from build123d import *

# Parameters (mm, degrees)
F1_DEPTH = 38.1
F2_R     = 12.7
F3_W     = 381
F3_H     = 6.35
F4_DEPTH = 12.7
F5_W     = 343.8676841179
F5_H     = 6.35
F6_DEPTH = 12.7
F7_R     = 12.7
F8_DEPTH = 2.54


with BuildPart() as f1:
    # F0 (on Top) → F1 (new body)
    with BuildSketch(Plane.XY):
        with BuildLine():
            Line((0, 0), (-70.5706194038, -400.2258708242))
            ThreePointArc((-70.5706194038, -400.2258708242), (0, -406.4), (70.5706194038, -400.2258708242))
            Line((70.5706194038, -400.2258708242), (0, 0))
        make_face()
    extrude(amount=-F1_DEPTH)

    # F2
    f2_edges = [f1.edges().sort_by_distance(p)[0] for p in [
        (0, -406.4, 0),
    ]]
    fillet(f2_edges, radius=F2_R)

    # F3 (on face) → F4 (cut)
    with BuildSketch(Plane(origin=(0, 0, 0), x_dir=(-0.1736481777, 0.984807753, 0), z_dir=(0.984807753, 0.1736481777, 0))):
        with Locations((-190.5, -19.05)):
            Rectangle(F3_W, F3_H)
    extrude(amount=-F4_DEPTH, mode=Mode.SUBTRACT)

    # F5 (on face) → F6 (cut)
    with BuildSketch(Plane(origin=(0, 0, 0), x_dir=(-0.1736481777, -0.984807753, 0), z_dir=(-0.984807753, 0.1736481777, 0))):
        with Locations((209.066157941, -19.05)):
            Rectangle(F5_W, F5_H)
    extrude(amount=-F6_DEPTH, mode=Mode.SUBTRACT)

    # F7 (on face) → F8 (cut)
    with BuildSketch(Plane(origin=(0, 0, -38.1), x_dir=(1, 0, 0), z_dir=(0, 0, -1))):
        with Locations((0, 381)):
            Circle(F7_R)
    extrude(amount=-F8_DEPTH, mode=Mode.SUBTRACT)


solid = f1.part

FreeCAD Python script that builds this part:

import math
import FreeCAD as App
import Part
import Sketcher
Q = App.Units.Quantity


def edges_at(feature, points):
    """Names of the edges that pass closest to the given points."""
    edges = feature.Shape.Edges
    near = lambda p: min(range(len(edges)), key=lambda i: edges[i].distToShape(Part.Vertex(*p))[0])
    return sorted({f"Edge{near(p) + 1}" for p in points})

doc = App.newDocument("Part")
params = doc.addObject("Spreadsheet::Sheet", "Params")
for row, (alias, value) in enumerate([
    ("sketch1_radius", "16 in"),
    ("pad1_length", "1.5 in"),
    ("fillet_radius", "0.5 in"),
    ("sketch2_width", "15 in"),
    ("sketch2_height", "0.25 in"),
    ("pocket1_length", "0.5 in"),
    ("sketch3_height", "0.25 in"),
    ("pocket2_length", "0.5 in"),
    ("sketch4_diameter", "1 in"),
    ("pocket3_length", "0.1 in"),
], start=1):
    params.set(f"A{row}", alias)
    params.set(f"B{row}", "=" + value)
    params.setAlias(f"B{row}", alias)

body = doc.addObject("PartDesign::Body", "Body")

sketch1 = body.newObject("Sketcher::SketchObject", "Sketch")
sketch1.AttachmentSupport = (doc.getObject("XY_Plane"), [""])
sketch1.MapMode = "FlatFace"
sketch1.addGeometry(Part.LineSegment(App.Vector(0, 0, 0), App.Vector(-71, -400, 0)), False)
sketch1.addGeometry(Part.ArcOfCircle(Part.Circle(App.Vector(0, 0, 0), App.Vector(0, 0, 1), 406), math.radians(-100), math.radians(-80)), False)
sketch1.addGeometry(Part.LineSegment(App.Vector(71, -400, 0), App.Vector(0, 0, 0)), False)
sketch1.addConstraint(Sketcher.Constraint("Coincident", 0, 2, 1, 1))
sketch1.addConstraint(Sketcher.Constraint("Coincident", 1, 2, 2, 1))
sketch1.addConstraint(Sketcher.Constraint("Coincident", 2, 2, 0, 1))
sketch1.addConstraint(Sketcher.Constraint("Coincident", 1, 3, -1, 1))
sketch1.addConstraint(Sketcher.Constraint("Coincident", 2, 2, -1, 1))
sketch1.addConstraint(Sketcher.Constraint("Horizontal", 0, 2, 1, 2))
sketch1.addConstraint(Sketcher.Constraint("Radius", 1, Q("16 in")))
sketch1.addConstraint(Sketcher.Constraint("Angle", 0, Q("-100 deg")))
sketch1.setExpression("Constraints[6]", "Params.sketch1_radius")
pad1 = body.newObject("PartDesign::Pad", "Pad")
pad1.Profile = sketch1
pad1.setExpression("Length", "Params.pad1_length")
pad1.Reversed = True
doc.recompute()

fillet = body.newObject("PartDesign::Fillet", "Fillet")
fillet.Base = (pad1, edges_at(pad1, [(0, -406.4, 0)]))
fillet.setExpression("Radius", "Params.fillet_radius")

sketch2 = body.newObject("Sketcher::SketchObject", "Sketch001")
sketch2.Placement = App.Placement(App.Vector(0, 0, 0), App.Rotation(App.Vector(-0.173648178, 0.984807753, 0), App.Vector(0, 0, 1), App.Vector(0.984807753, 0.173648178, 0), "ZXY"))
sketch2.addGeometry(Part.LineSegment(App.Vector(-381, -16, 0), App.Vector(-381, -22, 0)), False)
sketch2.addGeometry(Part.LineSegment(App.Vector(-381, -22, 0), App.Vector(0, -22, 0)), False)
sketch2.addGeometry(Part.LineSegment(App.Vector(0, -22, 0), App.Vector(0, -16, 0)), False)
sketch2.addGeometry(Part.LineSegment(App.Vector(0, -16, 0), App.Vector(-381, -16, 0)), False)
sketch2.addConstraint(Sketcher.Constraint("Coincident", 0, 2, 1, 1))
sketch2.addConstraint(Sketcher.Constraint("Coincident", 1, 2, 2, 1))
sketch2.addConstraint(Sketcher.Constraint("Coincident", 2, 2, 3, 1))
sketch2.addConstraint(Sketcher.Constraint("Coincident", 3, 2, 0, 1))
sketch2.addConstraint(Sketcher.Constraint("Vertical", 0))
sketch2.addConstraint(Sketcher.Constraint("Horizontal", 1))
sketch2.addConstraint(Sketcher.Constraint("Vertical", 2))
sketch2.addConstraint(Sketcher.Constraint("Horizontal", 3))
sketch2.addConstraint(Sketcher.Constraint("PointOnObject", 1, 2, -2))
sketch2.addConstraint(Sketcher.Constraint("DistanceX", 1, 1, 1, 2, Q("15 in")))
sketch2.addConstraint(Sketcher.Constraint("DistanceY", 0, 2, 0, 1, Q("0.25 in")))
sketch2.addConstraint(Sketcher.Constraint("DistanceY", 0, 2, -1, 1, Q("0.875 in")))
sketch2.setExpression("Constraints[9]", "Params.sketch2_width")
sketch2.setExpression("Constraints[10]", "Params.sketch2_height")
pocket1 = body.newObject("PartDesign::Pocket", "Pocket")
pocket1.Profile = sketch2
pocket1.setExpression("Length", "Params.pocket1_length")

sketch3 = body.newObject("Sketcher::SketchObject", "Sketch002")
sketch3.Placement = App.Placement(App.Vector(0, 0, 0), App.Rotation(App.Vector(-0.173648178, -0.984807753, 0), App.Vector(0, 0, 1), App.Vector(-0.984807753, 0.173648178, 0), "ZXY"))
sketch3.addGeometry(Part.LineSegment(App.Vector(37, -16, 0), App.Vector(37, -22, 0)), False)
sketch3.addGeometry(Part.LineSegment(App.Vector(37, -22, 0), App.Vector(381, -22, 0)), False)
sketch3.addGeometry(Part.LineSegment(App.Vector(381, -22, 0), App.Vector(381, -16, 0)), False)
sketch3.addGeometry(Part.LineSegment(App.Vector(381, -16, 0), App.Vector(37, -16, 0)), False)
sketch3.addConstraint(Sketcher.Constraint("Coincident", 0, 2, 1, 1))
sketch3.addConstraint(Sketcher.Constraint("Coincident", 1, 2, 2, 1))
sketch3.addConstraint(Sketcher.Constraint("Coincident", 2, 2, 3, 1))
sketch3.addConstraint(Sketcher.Constraint("Coincident", 3, 2, 0, 1))
sketch3.addConstraint(Sketcher.Constraint("Vertical", 0))
sketch3.addConstraint(Sketcher.Constraint("Horizontal", 1))
sketch3.addConstraint(Sketcher.Constraint("Vertical", 2))
sketch3.addConstraint(Sketcher.Constraint("Horizontal", 3))
sketch3.addConstraint(Sketcher.Constraint("DistanceX", -1, 1, 1, 2, Q("15 in")))
sketch3.addConstraint(Sketcher.Constraint("DistanceY", 0, 2, 0, 1, Q("0.25 in")))
sketch3.addConstraint(Sketcher.Constraint("DistanceY", 0, 2, -1, 1, Q("0.875 in")))
sketch3.addConstraint(Sketcher.Constraint("DistanceX", 1, 1, 1, 2, 343.867684))
sketch3.setExpression("Constraints[9]", "Params.sketch3_height")
pocket2 = body.newObject("PartDesign::Pocket", "Pocket001")
pocket2.Profile = sketch3
pocket2.setExpression("Length", "Params.pocket2_length")

sketch4 = body.newObject("Sketcher::SketchObject", "Sketch003")
sketch4.AttachmentSupport = (doc.getObject("XY_Plane"), [""])
sketch4.MapMode = "FlatFace"
sketch4.AttachmentOffset = App.Placement(App.Vector(0, 0, -1.5 * 25.4), App.Rotation())
sketch4.addGeometry(Part.Circle(App.Vector(0, -381, 0), App.Vector(0, 0, 1), 13), False)
sketch4.addConstraint(Sketcher.Constraint("PointOnObject", 0, 3, -2))
sketch4.addConstraint(Sketcher.Constraint("Diameter", 0, Q("1 in")))
sketch4.addConstraint(Sketcher.Constraint("DistanceY", 0, 3, -1, 1, Q("15 in")))
sketch4.setExpression("Constraints[1]", "Params.sketch4_diameter")
pocket3 = body.newObject("PartDesign::Pocket", "Pocket002")
pocket3.Profile = sketch4
pocket3.setExpression("Length", "Params.pocket3_length")
pocket3.Reversed = True

doc.recompute()
